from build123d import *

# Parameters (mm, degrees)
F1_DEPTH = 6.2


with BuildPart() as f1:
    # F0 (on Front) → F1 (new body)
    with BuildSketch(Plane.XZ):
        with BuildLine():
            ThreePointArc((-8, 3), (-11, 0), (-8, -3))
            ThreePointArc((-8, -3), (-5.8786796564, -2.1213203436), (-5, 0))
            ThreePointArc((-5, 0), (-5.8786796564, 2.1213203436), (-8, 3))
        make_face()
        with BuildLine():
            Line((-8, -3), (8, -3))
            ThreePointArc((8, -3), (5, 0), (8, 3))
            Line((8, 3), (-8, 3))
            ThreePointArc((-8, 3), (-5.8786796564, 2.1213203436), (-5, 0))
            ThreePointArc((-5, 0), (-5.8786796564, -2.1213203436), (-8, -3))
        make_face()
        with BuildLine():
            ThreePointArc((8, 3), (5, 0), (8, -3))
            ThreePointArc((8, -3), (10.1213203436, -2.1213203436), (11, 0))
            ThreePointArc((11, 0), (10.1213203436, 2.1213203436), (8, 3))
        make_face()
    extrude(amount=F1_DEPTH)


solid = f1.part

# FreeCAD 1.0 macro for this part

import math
import FreeCAD as App
import Part
import Sketcher

doc = App.newDocument("Part")
body = doc.addObject("PartDesign::Body", "Body")

# Sketch on XZ plane
sketch1 = doc.addObject("Sketcher::SketchObject", "Sketch")
body.addObject(sketch1)
sketch1.AttachmentSupport = (doc.XZ_Plane, [""])
sketch1.MapMode = "FlatFace"
sketch1.addGeometry(Part.ArcOfCircle(Part.Circle(App.Vector(-8, 0, 0), App.Vector(0, 0, 1), 3), math.radians(90), math.radians(270)), False)
sketch1.addGeometry(Part.LineSegment(App.Vector(-8, -3, 0), App.Vector(8, -3, 0)), False)
sketch1.addGeometry(Part.ArcOfCircle(Part.Circle(App.Vector(8, 0, 0), App.Vector(0, 0, 1), 3), math.radians(-90), math.radians(0)), False)
sketch1.addGeometry(Part.ArcOfCircle(Part.Circle(App.Vector(8, 0, 0), App.Vector(0, 0, 1), 3), math.radians(0), math.radians(90)), False)
sketch1.addGeometry(Part.LineSegment(App.Vector(8, 3, 0), App.Vector(-8, 3, 0)), False)
sketch1.addConstraint(Sketcher.Constraint("Tangent", 0, 2, 1, 1))
sketch1.addConstraint(Sketcher.Constraint("Tangent", 1, 2, 2, 1))
sketch1.addConstraint(Sketcher.Constraint("Tangent", 2, 2, 3, 1))
sketch1.addConstraint(Sketcher.Constraint("Tangent", 3, 2, 4, 1))
sketch1.addConstraint(Sketcher.Constraint("Tangent", 4, 2, 0, 1))
sketch1.addConstraint(Sketcher.Constraint("Horizontal", 1))
sketch1.addConstraint(Sketcher.Constraint("Horizontal", 4))
sketch1.addConstraint(Sketcher.Constraint("Equal", 0, 2))
sketch1.addConstraint(Sketcher.Constraint("Symmetric", 0, 3, 2, 3, -1, 1))
sketch1.addConstraint(Sketcher.Constraint("PointOnObject", 2, 2, -1))
sketch1.addConstraint(Sketcher.Constraint("Radius", 0, 3.0))
sketch1.addConstraint(Sketcher.Constraint("DistanceX", 1, 1, 1, 2, 16.0))
pad1 = doc.addObject("PartDesign::Pad", "Pad")
body.addObject(pad1)
pad1.Profile = sketch1
pad1.Length = 6.2

doc.recompute()
